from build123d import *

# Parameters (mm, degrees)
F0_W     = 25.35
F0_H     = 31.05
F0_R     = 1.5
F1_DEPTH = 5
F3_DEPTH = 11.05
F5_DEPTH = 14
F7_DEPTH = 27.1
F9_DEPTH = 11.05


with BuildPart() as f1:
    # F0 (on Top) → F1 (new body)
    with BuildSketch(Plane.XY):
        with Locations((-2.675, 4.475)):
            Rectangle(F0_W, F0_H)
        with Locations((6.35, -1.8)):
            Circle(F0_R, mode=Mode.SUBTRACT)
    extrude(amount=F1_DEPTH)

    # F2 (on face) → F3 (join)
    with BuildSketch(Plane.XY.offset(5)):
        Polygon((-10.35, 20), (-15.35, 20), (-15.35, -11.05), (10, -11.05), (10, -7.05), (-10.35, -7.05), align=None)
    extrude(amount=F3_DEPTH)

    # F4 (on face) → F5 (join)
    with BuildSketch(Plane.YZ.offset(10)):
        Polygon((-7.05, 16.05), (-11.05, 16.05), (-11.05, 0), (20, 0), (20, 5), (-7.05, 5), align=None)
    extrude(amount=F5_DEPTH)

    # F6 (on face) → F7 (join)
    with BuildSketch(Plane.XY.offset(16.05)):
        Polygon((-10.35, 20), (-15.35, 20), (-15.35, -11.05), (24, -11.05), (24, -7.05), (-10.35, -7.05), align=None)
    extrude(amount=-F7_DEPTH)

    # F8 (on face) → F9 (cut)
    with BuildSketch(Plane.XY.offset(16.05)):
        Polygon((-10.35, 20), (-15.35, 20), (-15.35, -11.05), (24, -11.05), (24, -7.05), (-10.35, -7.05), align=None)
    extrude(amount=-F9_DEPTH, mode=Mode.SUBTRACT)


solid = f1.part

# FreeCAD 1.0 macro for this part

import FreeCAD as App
import Part
import Sketcher
from FreeCAD import Vector


def add_polygon(sketch, points):
    """Adds a closed chain of lines whose ends are joined by coincident constraints."""
    first, n = sketch.GeometryCount, len(points)
    for a, b in zip(points, points[1:] + points[:1]):
        sketch.addGeometry(Part.LineSegment(App.Vector(*a, 0), App.Vector(*b, 0)), False)
    for i in range(n):
        sketch.addConstraint(Sketcher.Constraint("Coincident", first + i, 2, first + (i + 1) % n, 1))

doc = App.newDocument("Part")
body = doc.addObject("PartDesign::Body", "Body")

sketch1 = body.newObject("Sketcher::SketchObject", "Sketch")
sketch1.AttachmentSupport = (doc.getObject("XY_Plane"), [""])
sketch1.MapMode = "FlatFace"
add_polygon(sketch1, [(-15.35, 20), (-15.35, -11.05), (10, -11.05), (10, 20)])
sketch1.addGeometry(Part.Circle(Vector(6.35, -1.8, 0), Vector(0, 0, 1), 1.5), False)
sketch1.addConstraint([
    Sketcher.Constraint("Vertical", 0),
    Sketcher.Constraint("Horizontal", 1),
    Sketcher.Constraint("Vertical", 2),
    Sketcher.Constraint("Horizontal", 3),
    Sketcher.Constraint("Diameter", 4, 3.0),
    Sketcher.Constraint("DistanceX", -1, 1, 1, 2, 10.0),
    Sketcher.Constraint("DistanceY", -1, 1, 2, 2, 20.0),
    Sketcher.Constraint("DistanceX", 1, 1, 1, 2, 25.35),
    Sketcher.Constraint("DistanceY", 0, 2, 0, 1, 31.05),
    Sketcher.Constraint("DistanceY", 4, 3, -1, 1, 1.8),
    Sketcher.Constraint("DistanceX", 0, 2, 4, 3, 21.7),
])
pad1 = body.newObject("PartDesign::Pad", "Pad")
pad1.Profile = sketch1
pad1.Length = 5

sketch2 = body.newObject("Sketcher::SketchObject", "Sketch001")
sketch2.AttachmentSupport = (doc.getObject("XY_Plane"), [""])
sketch2.MapMode = "FlatFace"
sketch2.AttachmentOffset = App.Placement(Vector(0, 0, 5), App.Rotation())
add_polygon(sketch2, [(-10.35, 20), (-15.35, 20), (-15.35, -11.05), (10, -11.05), (10, -7.05), (-10.35, -7.05)])
sketch2.addConstraint([
    Sketcher.Constraint("Horizontal", 0),
    Sketcher.Constraint("Vertical", 1),
    Sketcher.Constraint("Horizontal", 2),
    Sketcher.Constraint("Vertical", 3),
    Sketcher.Constraint("Horizontal", 4),
    Sketcher.Constraint("Vertical", 5),
    Sketcher.Constraint("DistanceX", 0, 2, 0, 1, 5.0),
    Sketcher.Constraint("DistanceY", 3, 1, 3, 2, 4.0),
    Sketcher.Constraint("DistanceY", -1, 1, 0, 2, 20.0),
    Sketcher.Constraint("DistanceX", -1, 1, 2, 2, 10.0),
    Sketcher.Constraint("DistanceX", 2, 1, 2, 2, 25.35),
    Sketcher.Constraint("DistanceY", 1, 2, 1, 1, 31.05),
])
pad2 = body.newObject("PartDesign::Pad", "Pad001")
pad2.Profile = sketch2
pad2.Length = 11.05

sketch3 = body.newObject("Sketcher::SketchObject", "Sketch002")
sketch3.AttachmentSupport = (doc.getObject("YZ_Plane"), [""])
sketch3.MapMode = "FlatFace"
sketch3.AttachmentOffset = App.Placement(Vector(0, 0, 10), App.Rotation())
add_polygon(sketch3, [(-7.05, 16.05), (-11.05, 16.05), (-11.05, 0), (20, 0), (20, 5), (-7.05, 5)])
sketch3.addConstraint([
    Sketcher.Constraint("Horizontal", 0),
    Sketcher.Constraint("Vertical", 1),
    Sketcher.Constraint("Horizontal", 2),
    Sketcher.Constraint("Vertical", 3),
    Sketcher.Constraint("Horizontal", 4),
    Sketcher.Constraint("Vertical", 5),
    Sketcher.Constraint("PointOnObject", 1, 2, -1),
    Sketcher.Constraint("DistanceX", 0, 2, 0, 1, 4.0),
    Sketcher.Constraint("DistanceY", 3, 1, 3, 2, 5.0),
    Sketcher.Constraint("DistanceX", -1, 1, 2, 2, 20.0),
    Sketcher.Constraint("DistanceX", 2, 1, 2, 2, 31.05),
    Sketcher.Constraint("DistanceY", 1, 2, 1, 1, 16.05),
])
pad3 = body.newObject("PartDesign::Pad", "Pad002")
pad3.Profile = sketch3
pad3.Length = 14

sketch4 = body.newObject("Sketcher::SketchObject", "Sketch003")
sketch4.AttachmentSupport = (doc.getObject("XY_Plane"), [""])
sketch4.MapMode = "FlatFace"
sketch4.AttachmentOffset = App.Placement(Vector(0, 0, 16.05), App.Rotation())
add_polygon(sketch4, [(-10.35, 20), (-15.35, 20), (-15.35, -11.05), (24, -11.05), (24, -7.05), (-10.35, -7.05)])
sketch4.addConstraint([
    Sketcher.Constraint("Horizontal", 0),
    Sketcher.Constraint("Vertical", 1),
    Sketcher.Constraint("Horizontal", 2),
    Sketcher.Constraint("Vertical", 3),
    Sketcher.Constraint("Horizontal", 4),
    Sketcher.Constraint("Vertical", 5),
    Sketcher.Constraint("DistanceX", 0, 2, 0, 1, 5.0),
    Sketcher.Constraint("DistanceY", 3, 1, 3, 2, 4.0),
    Sketcher.Constraint("DistanceY", -1, 1, 0, 2, 20.0),
    Sketcher.Constraint("DistanceX", -1, 1, 2, 2, 24.0),
    Sketcher.Constraint("DistanceX", 2, 1, 2, 2, 39.35),
    Sketcher.Constraint("DistanceY", 1, 2, 1, 1, 31.05),
])
pad4 = body.newObject("PartDesign::Pad", "Pad003")
pad4.Profile = sketch4
pad4.Length = 27.1
pad4.Reversed = True

sketch5 = body.newObject("Sketcher::SketchObject", "Sketch004")
sketch5.AttachmentSupport = (doc.getObject("XY_Plane"), [""])
sketch5.MapMode = "FlatFace"
sketch5.AttachmentOffset = App.Placement(Vector(0, 0, 16.05), App.Rotation())
add_polygon(sketch5, [(-10.35, 20), (-15.35, 20), (-15.35, -11.05), (24, -11.05), (24, -7.05), (-10.35, -7.05)])
sketch5.addConstraint([
    Sketcher.Constraint("Horizontal", 0),
    Sketcher.Constraint("Vertical", 1),
    Sketcher.Constraint("Horizontal", 2),
    Sketcher.Constraint("Vertical", 3),
    Sketcher.Constraint("Horizontal", 4),
    Sketcher.Constraint("Vertical", 5),
    Sketcher.Constraint("DistanceX", 0, 2, 0, 1, 5.0),
    Sketcher.Constraint("DistanceY", 3, 1, 3, 2, 4.0),
    Sketcher.Constraint("DistanceY", -1, 1, 0, 2, 20.0),
    Sketcher.Constraint("DistanceX", -1, 1, 2, 2, 24.0),
    Sketcher.Constraint("DistanceX", 2, 1, 2, 2, 39.35),
    Sketcher.Constraint("DistanceY", 1, 2, 1, 1, 31.05),
])
pocket1 = body.newObject("PartDesign::Pocket", "Pocket")
pocket1.Profile = sketch5
pocket1.Length = 11.05

doc.recompute()
